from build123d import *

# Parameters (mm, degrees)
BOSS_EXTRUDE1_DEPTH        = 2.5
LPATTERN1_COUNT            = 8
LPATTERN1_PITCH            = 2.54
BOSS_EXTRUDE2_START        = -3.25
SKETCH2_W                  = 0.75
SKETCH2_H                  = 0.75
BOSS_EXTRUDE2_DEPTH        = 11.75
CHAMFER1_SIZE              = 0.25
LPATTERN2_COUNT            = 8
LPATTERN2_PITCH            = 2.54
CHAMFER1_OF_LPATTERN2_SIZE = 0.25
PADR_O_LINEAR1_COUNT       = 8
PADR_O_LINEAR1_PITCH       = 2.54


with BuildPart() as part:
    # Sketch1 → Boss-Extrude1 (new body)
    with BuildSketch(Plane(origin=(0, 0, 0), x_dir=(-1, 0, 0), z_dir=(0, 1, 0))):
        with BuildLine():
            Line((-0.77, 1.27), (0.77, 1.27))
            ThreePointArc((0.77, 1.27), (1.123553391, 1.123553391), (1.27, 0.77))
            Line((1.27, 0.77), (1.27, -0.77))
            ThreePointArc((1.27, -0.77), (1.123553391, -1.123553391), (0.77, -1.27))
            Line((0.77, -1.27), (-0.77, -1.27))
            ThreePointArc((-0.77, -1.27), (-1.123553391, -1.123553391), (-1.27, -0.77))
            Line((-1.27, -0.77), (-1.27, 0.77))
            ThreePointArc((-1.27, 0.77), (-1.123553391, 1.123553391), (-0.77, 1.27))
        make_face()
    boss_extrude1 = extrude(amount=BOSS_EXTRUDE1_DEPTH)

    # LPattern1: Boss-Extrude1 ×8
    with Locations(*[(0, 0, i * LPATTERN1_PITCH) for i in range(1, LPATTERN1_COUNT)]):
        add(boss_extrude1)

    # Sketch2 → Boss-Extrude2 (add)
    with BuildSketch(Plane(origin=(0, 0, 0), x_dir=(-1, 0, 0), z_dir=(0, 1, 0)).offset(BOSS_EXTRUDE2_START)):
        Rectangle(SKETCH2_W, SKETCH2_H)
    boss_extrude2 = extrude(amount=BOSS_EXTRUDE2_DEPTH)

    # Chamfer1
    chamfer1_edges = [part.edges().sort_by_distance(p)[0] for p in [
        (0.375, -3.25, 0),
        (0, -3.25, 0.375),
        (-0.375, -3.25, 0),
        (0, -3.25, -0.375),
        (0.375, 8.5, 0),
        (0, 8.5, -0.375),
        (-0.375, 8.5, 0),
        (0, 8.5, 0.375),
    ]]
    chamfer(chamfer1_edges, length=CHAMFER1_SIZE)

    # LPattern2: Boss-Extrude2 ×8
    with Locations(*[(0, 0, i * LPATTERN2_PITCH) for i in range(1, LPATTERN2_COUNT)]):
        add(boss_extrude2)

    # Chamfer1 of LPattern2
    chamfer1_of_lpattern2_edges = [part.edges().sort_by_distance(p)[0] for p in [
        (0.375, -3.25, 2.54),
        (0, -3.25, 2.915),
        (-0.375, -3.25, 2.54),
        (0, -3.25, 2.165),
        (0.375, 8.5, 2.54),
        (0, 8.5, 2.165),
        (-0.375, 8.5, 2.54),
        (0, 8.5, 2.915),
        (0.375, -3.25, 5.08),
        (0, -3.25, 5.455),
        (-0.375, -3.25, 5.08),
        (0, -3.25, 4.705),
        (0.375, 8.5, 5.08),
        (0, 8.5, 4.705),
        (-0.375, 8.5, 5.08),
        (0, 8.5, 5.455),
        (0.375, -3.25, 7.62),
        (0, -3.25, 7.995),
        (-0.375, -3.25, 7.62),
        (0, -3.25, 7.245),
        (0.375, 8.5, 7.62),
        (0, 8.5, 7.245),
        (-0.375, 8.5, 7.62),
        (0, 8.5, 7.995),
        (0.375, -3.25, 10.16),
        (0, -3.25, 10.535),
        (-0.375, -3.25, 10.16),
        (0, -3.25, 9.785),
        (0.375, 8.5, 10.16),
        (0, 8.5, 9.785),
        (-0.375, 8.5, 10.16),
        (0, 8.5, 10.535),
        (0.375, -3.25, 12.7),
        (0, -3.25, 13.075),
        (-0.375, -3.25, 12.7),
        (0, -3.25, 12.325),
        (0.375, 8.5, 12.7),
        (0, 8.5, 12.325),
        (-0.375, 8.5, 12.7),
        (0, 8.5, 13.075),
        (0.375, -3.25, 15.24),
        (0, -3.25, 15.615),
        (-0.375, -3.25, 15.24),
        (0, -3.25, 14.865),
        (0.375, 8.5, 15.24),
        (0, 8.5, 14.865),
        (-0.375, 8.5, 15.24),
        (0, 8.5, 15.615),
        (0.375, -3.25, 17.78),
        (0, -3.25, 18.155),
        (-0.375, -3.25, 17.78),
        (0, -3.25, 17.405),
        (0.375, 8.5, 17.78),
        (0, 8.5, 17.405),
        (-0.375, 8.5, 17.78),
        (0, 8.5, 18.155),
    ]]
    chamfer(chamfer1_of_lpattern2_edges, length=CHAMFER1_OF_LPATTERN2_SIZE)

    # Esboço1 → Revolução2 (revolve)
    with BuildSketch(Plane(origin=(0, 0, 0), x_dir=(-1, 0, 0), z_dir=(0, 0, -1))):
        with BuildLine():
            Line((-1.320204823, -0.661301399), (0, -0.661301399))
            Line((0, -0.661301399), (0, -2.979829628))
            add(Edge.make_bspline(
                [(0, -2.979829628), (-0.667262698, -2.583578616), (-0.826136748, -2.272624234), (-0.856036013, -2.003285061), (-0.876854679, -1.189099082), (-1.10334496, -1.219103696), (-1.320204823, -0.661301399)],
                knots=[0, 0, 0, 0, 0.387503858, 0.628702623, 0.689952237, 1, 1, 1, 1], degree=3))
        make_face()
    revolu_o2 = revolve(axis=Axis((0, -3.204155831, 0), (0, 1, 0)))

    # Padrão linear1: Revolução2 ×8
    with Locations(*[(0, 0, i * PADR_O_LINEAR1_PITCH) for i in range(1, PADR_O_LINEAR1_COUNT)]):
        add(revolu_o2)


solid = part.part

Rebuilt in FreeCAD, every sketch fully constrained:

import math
import FreeCAD as App
import Part
import Sketcher

V = App.Vector


def edges_at(feature, points):
    """Names of the edges that pass closest to the given points."""
    edges = feature.Shape.Edges
    near = lambda p: min(range(len(edges)), key=lambda i: edges[i].distToShape(Part.Vertex(*p))[0])
    return sorted({f"Edge{near(p) + 1}" for p in points})

doc = App.newDocument("Part")
body = doc.addObject("PartDesign::Body", "Body")

# Sketch on XZ plane
sketch1 = body.newObject("Sketcher::SketchObject", "Sketch")
sketch1.AttachmentSupport = (doc.getObject("XZ_Plane"), [""])
sketch1.MapMode = "FlatFace"
sketch1.addGeometry([
    Part.LineSegment(V(-0.77, 1.27, 0), V(0.77, 1.27, 0)),  # 0
    Part.ArcOfCircle(Part.Circle(V(0.77, 0.77, 0), V(0, 0, 1), 0.5), math.radians(0), math.radians(90)),  # 1
    Part.LineSegment(V(1.27, 0.77, 0), V(1.27, -0.77, 0)),  # 2
    Part.ArcOfCircle(Part.Circle(V(0.77, -0.77, 0), V(0, 0, 1), 0.5), math.radians(-90), math.radians(0)),  # 3
    Part.LineSegment(V(0.77, -1.27, 0), V(-0.77, -1.27, 0)),  # 4
    Part.ArcOfCircle(Part.Circle(V(-0.77, -0.77, 0), V(0, 0, 1), 0.5), math.radians(180), math.radians(270)),  # 5
    Part.LineSegment(V(-1.27, -0.77, 0), V(-1.27, 0.77, 0)),  # 6
    Part.ArcOfCircle(Part.Circle(V(-0.77, 0.77, 0), V(0, 0, 1), 0.5), math.radians(90), math.radians(180)),  # 7
], False)
sketch1.addConstraint([
    Sketcher.Constraint("Tangent", 0, 2, 1, 2),
    Sketcher.Constraint("Tangent", 1, 1, 2, 1),
    Sketcher.Constraint("Tangent", 2, 2, 3, 2),
    Sketcher.Constraint("Tangent", 3, 1, 4, 1),
    Sketcher.Constraint("Tangent", 4, 2, 5, 2),
    Sketcher.Constraint("Tangent", 5, 1, 6, 1),
    Sketcher.Constraint("Tangent", 6, 2, 7, 2),
    Sketcher.Constraint("Tangent", 7, 1, 0, 1),
    Sketcher.Constraint("Horizontal", 0),
    Sketcher.Constraint("Vertical", 2),
    Sketcher.Constraint("Horizontal", 4),
    Sketcher.Constraint("Vertical", 6),
    Sketcher.Constraint("Equal", 1, 3),
    Sketcher.Constraint("Equal", 3, 5),
    Sketcher.Constraint("Equal", 5, 7),
    Sketcher.Constraint("Symmetric", 1, 3, 5, 3, -1, 1),
    Sketcher.Constraint("Equal", 4, 2),
    Sketcher.Constraint("Radius", 1, 0.5),
    Sketcher.Constraint("DistanceX", 0, 1, 0, 2, 1.54),
])
pad1 = body.newObject("PartDesign::Pad", "Pad")
pad1.Profile = sketch1
pad1.Length = 2.5
pad1.Reversed = True
doc.recompute()

linearpattern = body.newObject("PartDesign::LinearPattern", "LinearPattern")
linearpattern.Originals = [pad1]
linearpattern.Direction = (doc.getObject("Z_Axis"), [""])
linearpattern.Mode = "offset"
linearpattern.Offset = 2.54
linearpattern.Occurrences = 8
body.Tip = linearpattern

# Sketch on XZ plane
sketch2 = body.newObject("Sketcher::SketchObject", "Sketch001")
sketch2.AttachmentSupport = (doc.getObject("XZ_Plane"), [""])
sketch2.MapMode = "FlatFace"
sketch2.AttachmentOffset = App.Placement(V(0, 0, 3.25), App.Rotation())
sketch2.addGeometry([
    Part.LineSegment(V(0.4, 0.4, 0), V(0.4, -0.4, 0)),
    Part.LineSegment(V(0.4, -0.4, 0), V(-0.4, -0.4, 0)),
    Part.LineSegment(V(-0.4, -0.4, 0), V(-0.4, 0.4, 0)),
    Part.LineSegment(V(-0.4, 0.4, 0), V(0.4, 0.4, 0)),
], False)
sketch2.addConstraint([
    Sketcher.Constraint("Coincident", 0, 2, 1, 1),
    Sketcher.Constraint("Coincident", 1, 2, 2, 1),
    Sketcher.Constraint("Coincident", 2, 2, 3, 1),
    Sketcher.Constraint("Coincident", 3, 2, 0, 1),
    Sketcher.Constraint("Vertical", 0),
    Sketcher.Constraint("Horizontal", 1),
    Sketcher.Constraint("Vertical", 2),
    Sketcher.Constraint("Horizontal", 3),
    Sketcher.Constraint("Symmetric", 0, 2, 2, 2, -1, 1),
    Sketcher.Constraint("Equal", 3, 0),
    Sketcher.Constraint("DistanceX", 1, 2, 1, 1, 0.75),
])
pad2 = body.newObject("PartDesign::Pad", "Pad001")
pad2.Profile = sketch2
pad2.Length = 11.75
pad2.Reversed = True
doc.recompute()

chamfer = body.newObject("PartDesign::Chamfer", "Chamfer")
chamfer.Base = (pad2, edges_at(pad2, [
    (0.375, -3.25, 0),
    (0, -3.25, 0.375),
    (-0.375, -3.25, 0),
    (0, -3.25, -0.375),
    (0.375, 8.5, 0),
    (0, 8.5, -0.375),
    (-0.375, 8.5, 0),
    (0, 8.5, 0.375),
]))
chamfer.Size = 0.25
doc.recompute()

linearpattern2 = body.newObject("PartDesign::LinearPattern", "LinearPattern001")
linearpattern2.Originals = [pad2]
linearpattern2.Direction = (doc.getObject("Z_Axis"), [""])
linearpattern2.Mode = "offset"
linearpattern2.Offset = 2.54
linearpattern2.Occurrences = 8
body.Tip = linearpattern2
doc.recompute()

chamfer2 = body.newObject("PartDesign::Chamfer", "Chamfer001")
chamfer2.Base = (linearpattern2, edges_at(linearpattern2, [
    (0.375, -3.25, 2.54),
    (0, -3.25, 2.915),
    (-0.375, -3.25, 2.54),
    (0, -3.25, 2.165),
    (0.375, 8.5, 2.54),
    (0, 8.5, 2.165),
    (-0.375, 8.5, 2.54),
    (0, 8.5, 2.915),
    (0.375, -3.25, 5.08),
    (0, -3.25, 5.455),
    (-0.375, -3.25, 5.08),
    (0, -3.25, 4.705),
    (0.375, 8.5, 5.08),
    (0, 8.5, 4.705),
    (-0.375, 8.5, 5.08),
    (0, 8.5, 5.455),
    (0.375, -3.25, 7.62),
    (0, -3.25, 7.995),
    (-0.375, -3.25, 7.62),
    (0, -3.25, 7.245),
    (0.375, 8.5, 7.62),
    (0, 8.5, 7.245),
    (-0.375, 8.5, 7.62),
    (0, 8.5, 7.995),
    (0.375, -3.25, 10.16),
    (0, -3.25, 10.535),
    (-0.375, -3.25, 10.16),
    (0, -3.25, 9.785),
    (0.375, 8.5, 10.16),
    (0, 8.5, 9.785),
    (-0.375, 8.5, 10.16),
    (0, 8.5, 10.535),
    (0.375, -3.25, 12.7),
    (0, -3.25, 13.075),
    (-0.375, -3.25, 12.7),
    (0, -3.25, 12.325),
    (0.375, 8.5, 12.7),
    (0, 8.5, 12.325),
    (-0.375, 8.5, 12.7),
    (0, 8.5, 13.075),
    (0.375, -3.25, 15.24),
    (0, -3.25, 15.615),
    (-0.375, -3.25, 15.24),
    (0, -3.25, 14.865),
    (0.375, 8.5, 15.24),
    (0, 8.5, 14.865),
    (-0.375, 8.5, 15.24),
    (0, 8.5, 15.615),
    (0.375, -3.25, 17.78),
    (0, -3.25, 18.155),
    (-0.375, -3.25, 17.78),
    (0, -3.25, 17.405),
    (0.375, 8.5, 17.78),
    (0, 8.5, 17.405),
    (-0.375, 8.5, 17.78),
    (0, 8.5, 18.155),
]))
chamfer2.Size = 0.25

# Sketch on XY plane
sketch3 = body.newObject("Sketcher::SketchObject", "Sketch002")
sketch3.AttachmentSupport = (doc.getObject("XY_Plane"), [""])
sketch3.MapMode = "FlatFace"
sketch3.addGeometry([
    Part.LineSegment(V(0, -0.661301, 0), V(1.320205, -0.661301, 0)),
    Part.BSplineCurve([V(0, -2.97983, 0), V(0.667263, -2.583579, 0), V(0.826137, -2.272624, 0), V(0.856036, -2.003285, 0), V(0.876855, -1.189099, 0), V(1.103345, -1.219104, 0), V(1.320205, -0.661301, 0)], [4, 1, 1, 1, 4], [0, 0.387503858, 0.628702623, 0.689952237, 1], False, 3, [1, 1, 1, 1, 1, 1, 1], False),
    Part.LineSegment(V(0, -2.97983, 0), V(0, -0.661301, 0)),
], False)
sketch3.addConstraint([
    Sketcher.Constraint("Block", 1),
    Sketcher.Constraint("Coincident", 0, 2, 1, 2),
    Sketcher.Constraint("Coincident", 1, 1, 2, 1),
    Sketcher.Constraint("Coincident", 2, 2, 0, 1),
    Sketcher.Constraint("Horizontal", 0),
    Sketcher.Constraint("Vertical", 2),
])
revolution = body.newObject("PartDesign::Revolution", "Revolution")
revolution.Profile = sketch3
revolution.ReferenceAxis = (sketch3, ["V_Axis"])
revolution.Angle = 360
doc.recompute()

linearpattern3 = body.newObject("PartDesign::LinearPattern", "LinearPattern002")
linearpattern3.Originals = [revolution]
linearpattern3.Direction = (doc.getObject("Z_Axis"), [""])
linearpattern3.Mode = "offset"
linearpattern3.Offset = 2.54
linearpattern3.Occurrences = 8
body.Tip = linearpattern3

doc.recompute()
